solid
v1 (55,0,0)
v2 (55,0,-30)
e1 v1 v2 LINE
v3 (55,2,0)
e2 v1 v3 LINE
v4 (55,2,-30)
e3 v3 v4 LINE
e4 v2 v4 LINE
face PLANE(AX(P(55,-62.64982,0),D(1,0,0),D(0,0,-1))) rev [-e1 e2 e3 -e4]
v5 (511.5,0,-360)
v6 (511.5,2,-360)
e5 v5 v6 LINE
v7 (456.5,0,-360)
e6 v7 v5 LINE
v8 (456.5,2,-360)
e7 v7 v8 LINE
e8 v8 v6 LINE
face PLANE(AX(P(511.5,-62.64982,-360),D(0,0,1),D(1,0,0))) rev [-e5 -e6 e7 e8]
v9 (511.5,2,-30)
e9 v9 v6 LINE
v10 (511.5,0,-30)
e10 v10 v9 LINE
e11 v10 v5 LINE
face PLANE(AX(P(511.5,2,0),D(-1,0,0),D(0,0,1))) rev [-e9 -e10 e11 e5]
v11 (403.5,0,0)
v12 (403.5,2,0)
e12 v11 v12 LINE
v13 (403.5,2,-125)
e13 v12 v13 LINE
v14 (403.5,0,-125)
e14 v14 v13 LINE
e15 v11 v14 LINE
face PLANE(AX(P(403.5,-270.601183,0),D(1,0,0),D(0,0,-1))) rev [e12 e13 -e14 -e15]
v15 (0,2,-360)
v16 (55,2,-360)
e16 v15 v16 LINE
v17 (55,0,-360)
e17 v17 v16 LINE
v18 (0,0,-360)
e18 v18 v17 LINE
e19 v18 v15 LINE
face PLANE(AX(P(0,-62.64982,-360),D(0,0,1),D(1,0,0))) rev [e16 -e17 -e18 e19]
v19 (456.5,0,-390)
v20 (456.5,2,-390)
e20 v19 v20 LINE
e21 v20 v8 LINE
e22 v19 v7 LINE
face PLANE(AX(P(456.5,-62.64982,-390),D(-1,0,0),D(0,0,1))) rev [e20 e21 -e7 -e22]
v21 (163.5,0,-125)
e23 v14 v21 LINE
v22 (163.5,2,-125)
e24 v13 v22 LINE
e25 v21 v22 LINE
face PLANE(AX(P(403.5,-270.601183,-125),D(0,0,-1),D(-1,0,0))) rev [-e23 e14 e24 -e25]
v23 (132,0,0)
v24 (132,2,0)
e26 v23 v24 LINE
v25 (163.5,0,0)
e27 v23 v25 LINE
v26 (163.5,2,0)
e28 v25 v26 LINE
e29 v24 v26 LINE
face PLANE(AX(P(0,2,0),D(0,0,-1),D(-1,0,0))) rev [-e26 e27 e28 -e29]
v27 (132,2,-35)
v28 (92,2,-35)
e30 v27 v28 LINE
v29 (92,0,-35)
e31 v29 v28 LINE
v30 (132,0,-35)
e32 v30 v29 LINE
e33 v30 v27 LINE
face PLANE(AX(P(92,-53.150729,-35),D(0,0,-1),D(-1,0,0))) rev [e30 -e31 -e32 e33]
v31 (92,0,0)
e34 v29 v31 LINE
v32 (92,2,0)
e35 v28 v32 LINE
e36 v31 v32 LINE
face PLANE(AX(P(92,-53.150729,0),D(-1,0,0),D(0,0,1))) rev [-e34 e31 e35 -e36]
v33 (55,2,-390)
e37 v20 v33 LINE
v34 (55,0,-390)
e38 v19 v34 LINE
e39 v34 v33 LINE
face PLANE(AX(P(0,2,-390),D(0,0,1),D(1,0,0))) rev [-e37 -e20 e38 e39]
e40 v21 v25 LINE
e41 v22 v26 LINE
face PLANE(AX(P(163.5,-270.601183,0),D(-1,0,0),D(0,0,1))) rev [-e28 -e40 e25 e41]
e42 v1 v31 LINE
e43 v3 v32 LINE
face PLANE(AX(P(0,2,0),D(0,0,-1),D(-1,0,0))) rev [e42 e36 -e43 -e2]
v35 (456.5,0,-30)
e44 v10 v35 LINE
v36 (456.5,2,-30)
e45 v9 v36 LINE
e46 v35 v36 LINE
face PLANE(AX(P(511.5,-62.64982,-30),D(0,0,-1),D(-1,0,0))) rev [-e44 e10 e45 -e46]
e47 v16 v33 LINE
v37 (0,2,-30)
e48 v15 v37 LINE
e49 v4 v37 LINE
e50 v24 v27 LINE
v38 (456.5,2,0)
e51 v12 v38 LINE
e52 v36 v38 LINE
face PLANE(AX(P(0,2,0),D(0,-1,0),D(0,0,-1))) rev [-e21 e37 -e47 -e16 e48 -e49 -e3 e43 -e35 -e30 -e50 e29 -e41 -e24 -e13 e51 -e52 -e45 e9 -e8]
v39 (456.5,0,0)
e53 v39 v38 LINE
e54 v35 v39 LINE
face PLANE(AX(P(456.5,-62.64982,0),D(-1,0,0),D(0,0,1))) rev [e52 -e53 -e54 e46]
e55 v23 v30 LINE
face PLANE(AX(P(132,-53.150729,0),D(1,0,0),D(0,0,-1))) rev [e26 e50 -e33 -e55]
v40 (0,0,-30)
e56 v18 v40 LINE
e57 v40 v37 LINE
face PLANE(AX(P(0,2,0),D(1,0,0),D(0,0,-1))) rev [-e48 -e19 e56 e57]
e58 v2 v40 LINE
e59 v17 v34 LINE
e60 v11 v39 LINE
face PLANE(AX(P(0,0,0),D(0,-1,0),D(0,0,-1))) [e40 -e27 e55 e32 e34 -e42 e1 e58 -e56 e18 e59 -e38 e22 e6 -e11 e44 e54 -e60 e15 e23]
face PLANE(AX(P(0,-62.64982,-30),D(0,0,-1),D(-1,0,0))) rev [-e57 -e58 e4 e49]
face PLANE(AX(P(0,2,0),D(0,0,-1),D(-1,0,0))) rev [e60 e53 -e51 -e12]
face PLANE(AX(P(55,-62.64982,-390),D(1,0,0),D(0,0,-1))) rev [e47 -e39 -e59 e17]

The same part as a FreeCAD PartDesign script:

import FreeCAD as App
import Part
import Sketcher
Q = App.Units.Quantity

doc = App.newDocument("Part")
body = doc.addObject("PartDesign::Body", "Body")

# Sketch on XZ plane
sketch1 = body.newObject("Sketcher::SketchObject", "Sketch")
sketch1.AttachmentSupport = (doc.getObject("XZ_Plane"), [""])
sketch1.MapMode = "FlatFace"
sketch1.addGeometry([
    Part.LineSegment(App.Vector(0, -390, 0), App.Vector(0, 0, 0)),
    Part.LineSegment(App.Vector(0, 0, 0), App.Vector(512, 0, 0)),
    Part.LineSegment(App.Vector(512, 0, 0), App.Vector(512, -390, 0)),
    Part.LineSegment(App.Vector(512, -390, 0), App.Vector(0, -390, 0)),
], False)
sketch1.addConstraint([
    Sketcher.Constraint("Coincident", 0, 2, 1, 1),
    Sketcher.Constraint("Coincident", 1, 2, 2, 1),
    Sketcher.Constraint("Coincident", 2, 2, 3, 1),
    Sketcher.Constraint("Coincident", 3, 2, 0, 1),
    Sketcher.Constraint("Vertical", 0),
    Sketcher.Constraint("Horizontal", 1),
    Sketcher.Constraint("Vertical", 2),
    Sketcher.Constraint("Horizontal", 3),
    Sketcher.Constraint("Coincident", 0, 2, -1, 1),
    Sketcher.Constraint("DistanceY", 0, 1, 0, 2, Q("390 mm")),
    Sketcher.Constraint("DistanceX", 1, 1, 1, 2, Q("511.5 mm")),
])
pad1 = body.newObject("PartDesign::Pad", "Pad")
pad1.Profile = sketch1
pad1.Length = 2
pad1.Reversed = True

# Sketch on XZ plane
sketch2 = body.newObject("Sketcher::SketchObject", "Sketch001")
sketch2.AttachmentSupport = (doc.getObject("XZ_Plane"), [""])
sketch2.MapMode = "FlatFace"
sketch2.AttachmentOffset = App.Placement(App.Vector(0, 0, -2), App.Rotation())
sketch2.addGeometry([
    Part.LineSegment(App.Vector(456, -30, 0), App.Vector(456, 0, 0)),  # 0
    Part.LineSegment(App.Vector(456, 0, 0), App.Vector(512, 0, 0)),  # 1
    Part.LineSegment(App.Vector(512, 0, 0), App.Vector(512, -30, 0)),  # 2
    Part.LineSegment(App.Vector(512, -30, 0), App.Vector(456, -30, 0)),  # 3
    Part.LineSegment(App.Vector(0, -30, 0), App.Vector(0, 0, 0)),  # 4
    Part.LineSegment(App.Vector(0, 0, 0), App.Vector(55, 0, 0)),  # 5
    Part.LineSegment(App.Vector(55, 0, 0), App.Vector(55, -30, 0)),  # 6
    Part.LineSegment(App.Vector(55, -30, 0), App.Vector(0, -30, 0)),  # 7
    Part.LineSegment(App.Vector(456, -390, 0), App.Vector(456, -360, 0)),  # 8
    Part.LineSegment(App.Vector(456, -360, 0), App.Vector(512, -360, 0)),  # 9
    Part.LineSegment(App.Vector(512, -360, 0), App.Vector(512, -390, 0)),  # 10
    Part.LineSegment(App.Vector(512, -390, 0), App.Vector(456, -390, 0)),  # 11
    Part.LineSegment(App.Vector(0, -390, 0), App.Vector(0, -360, 0)),  # 12
    Part.LineSegment(App.Vector(0, -360, 0), App.Vector(55, -360, 0)),  # 13
    Part.LineSegment(App.Vector(55, -360, 0), App.Vector(55, -390, 0)),  # 14
    Part.LineSegment(App.Vector(55, -390, 0), App.Vector(0, -390, 0)),  # 15
], False)
sketch2.addConstraint([
    Sketcher.Constraint("Coincident", 0, 2, 1, 1),
    Sketcher.Constraint("Coincident", 1, 2, 2, 1),
    Sketcher.Constraint("Coincident", 2, 2, 3, 1),
    Sketcher.Constraint("Coincident", 3, 2, 0, 1),
    Sketcher.Constraint("Coincident", 4, 2, 5, 1),
    Sketcher.Constraint("Coincident", 5, 2, 6, 1),
    Sketcher.Constraint("Coincident", 6, 2, 7, 1),
    Sketcher.Constraint("Coincident", 7, 2, 4, 1),
    Sketcher.Constraint("Coincident", 8, 2, 9, 1),
    Sketcher.Constraint("Coincident", 9, 2, 10, 1),
    Sketcher.Constraint("Coincident", 10, 2, 11, 1),
    Sketcher.Constraint("Coincident", 11, 2, 8, 1),
    Sketcher.Constraint("Coincident", 12, 2, 13, 1),
    Sketcher.Constraint("Coincident", 13, 2, 14, 1),
    Sketcher.Constraint("Coincident", 14, 2, 15, 1),
    Sketcher.Constraint("Coincident", 15, 2, 12, 1),
    Sketcher.Constraint("Vertical", 0),
    Sketcher.Constraint("Horizontal", 1),
    Sketcher.Constraint("Vertical", 2),
    Sketcher.Constraint("Horizontal", 3),
    Sketcher.Constraint("Vertical", 4),
    Sketcher.Constraint("Horizontal", 5),
    Sketcher.Constraint("Vertical", 6),
    Sketcher.Constraint("Horizontal", 7),
    Sketcher.Constraint("Vertical", 8),
    Sketcher.Constraint("Horizontal", 9),
    Sketcher.Constraint("Vertical", 10),
    Sketcher.Constraint("Horizontal", 11),
    Sketcher.Constraint("Vertical", 12),
    Sketcher.Constraint("Horizontal", 13),
    Sketcher.Constraint("Vertical", 14),
    Sketcher.Constraint("Horizontal", 15),
    Sketcher.Constraint("Coincident", 4, 2, -1, 1),
    Sketcher.Constraint("PointOnObject", 0, 2, -1),
    Sketcher.Constraint("PointOnObject", 12, 2, -2),
    Sketcher.Constraint("Horizontal", 3, 2, 6, 2),
    Sketcher.Constraint("Horizontal", 9, 2, 12, 2),
    Sketcher.Constraint("Horizontal", 11, 2, 14, 2),
    Sketcher.Constraint("Vertical", 3, 2, 8, 2),
    Sketcher.Constraint("Vertical", 2, 2, 9, 2),
    Sketcher.Constraint("Vertical", 6, 2, 13, 2),
    Sketcher.Constraint("Equal", 3, 5),
    Sketcher.Constraint("Equal", 6, 8),
    Sketcher.Constraint("DistanceX", 1, 1, 1, 2, Q("55 mm")),
    Sketcher.Constraint("DistanceY", 0, 1, 0, 2, Q("30 mm")),
    Sketcher.Constraint("DistanceY", 8, 2, -1, 1, Q("360 mm")),
    Sketcher.Constraint("DistanceX", -1, 1, 0, 2, Q("456.5 mm")),
])
pocket1 = body.newObject("PartDesign::Pocket", "Pocket")
pocket1.Profile = sketch2
pocket1.Length = 2
pocket1.Reversed = True

# Sketch on XZ plane
sketch3 = body.newObject("Sketcher::SketchObject", "Sketch002")
sketch3.AttachmentSupport = (doc.getObject("XZ_Plane"), [""])
sketch3.MapMode = "FlatFace"
sketch3.AttachmentOffset = App.Placement(App.Vector(0, 0, -2), App.Rotation())
sketch3.addGeometry([
    Part.LineSegment(App.Vector(164, -125, 0), App.Vector(164, 0, 0)),
    Part.LineSegment(App.Vector(164, 0, 0), App.Vector(404, 0, 0)),
    Part.LineSegment(App.Vector(404, 0, 0), App.Vector(404, -125, 0)),
    Part.LineSegment(App.Vector(404, -125, 0), App.Vector(164, -125, 0)),
], False)
sketch3.addConstraint([
    Sketcher.Constraint("Coincident", 0, 2, 1, 1),
    Sketcher.Constraint("Coincident", 1, 2, 2, 1),
    Sketcher.Constraint("Coincident", 2, 2, 3, 1),
    Sketcher.Constraint("Coincident", 3, 2, 0, 1),
    Sketcher.Constraint("Vertical", 0),
    Sketcher.Constraint("Horizontal", 1),
    Sketcher.Constraint("Vertical", 2),
    Sketcher.Constraint("Horizontal", 3),
    Sketcher.Constraint("PointOnObject", 0, 2, -1),
    Sketcher.Constraint("DistanceX", 1, 1, 1, 2, Q("240 mm")),
    Sketcher.Constraint("DistanceY", 0, 1, 0, 2, Q("125 mm")),
    Sketcher.Constraint("DistanceX", -1, 1, 0, 2, Q("163.5 mm")),
])
pocket2 = body.newObject("PartDesign::Pocket", "Pocket001")
pocket2.Profile = sketch3
pocket2.Length = 2
pocket2.Reversed = True

# Sketch on XZ plane
sketch4 = body.newObject("Sketcher::SketchObject", "Sketch003")
sketch4.AttachmentSupport = (doc.getObject("XZ_Plane"), [""])
sketch4.MapMode = "FlatFace"
sketch4.AttachmentOffset = App.Placement(App.Vector(0, 0, -2), App.Rotation())
sketch4.addGeometry([
    Part.LineSegment(App.Vector(92, -35, 0), App.Vector(92, 0, 0)),
    Part.LineSegment(App.Vector(92, 0, 0), App.Vector(132, 0, 0)),
    Part.LineSegment(App.Vector(132, 0, 0), App.Vector(132, -35, 0)),
    Part.LineSegment(App.Vector(132, -35, 0), App.Vector(92, -35, 0)),
], False)
sketch4.addConstraint([
    Sketcher.Constraint("Coincident", 0, 2, 1, 1),
    Sketcher.Constraint("Coincident", 1, 2, 2, 1),
    Sketcher.Constraint("Coincident", 2, 2, 3, 1),
    Sketcher.Constraint("Coincident", 3, 2, 0, 1),
    Sketcher.Constraint("Vertical", 0),
    Sketcher.Constraint("Horizontal", 1),
    Sketcher.Constraint("Vertical", 2),
    Sketcher.Constraint("Horizontal", 3),
    Sketcher.Constraint("PointOnObject", 0, 2, -1),
    Sketcher.Constraint("DistanceX", 1, 1, 1, 2, Q("40 mm")),
    Sketcher.Constraint("DistanceY", 0, 1, 0, 2, Q("35 mm")),
    Sketcher.Constraint("DistanceX", -1, 1, 0, 2, Q("92 mm")),
])
pocket3 = body.newObject("PartDesign::Pocket", "Pocket002")
pocket3.Profile = sketch4
pocket3.Length = 2
pocket3.Reversed = True

doc.recompute()
